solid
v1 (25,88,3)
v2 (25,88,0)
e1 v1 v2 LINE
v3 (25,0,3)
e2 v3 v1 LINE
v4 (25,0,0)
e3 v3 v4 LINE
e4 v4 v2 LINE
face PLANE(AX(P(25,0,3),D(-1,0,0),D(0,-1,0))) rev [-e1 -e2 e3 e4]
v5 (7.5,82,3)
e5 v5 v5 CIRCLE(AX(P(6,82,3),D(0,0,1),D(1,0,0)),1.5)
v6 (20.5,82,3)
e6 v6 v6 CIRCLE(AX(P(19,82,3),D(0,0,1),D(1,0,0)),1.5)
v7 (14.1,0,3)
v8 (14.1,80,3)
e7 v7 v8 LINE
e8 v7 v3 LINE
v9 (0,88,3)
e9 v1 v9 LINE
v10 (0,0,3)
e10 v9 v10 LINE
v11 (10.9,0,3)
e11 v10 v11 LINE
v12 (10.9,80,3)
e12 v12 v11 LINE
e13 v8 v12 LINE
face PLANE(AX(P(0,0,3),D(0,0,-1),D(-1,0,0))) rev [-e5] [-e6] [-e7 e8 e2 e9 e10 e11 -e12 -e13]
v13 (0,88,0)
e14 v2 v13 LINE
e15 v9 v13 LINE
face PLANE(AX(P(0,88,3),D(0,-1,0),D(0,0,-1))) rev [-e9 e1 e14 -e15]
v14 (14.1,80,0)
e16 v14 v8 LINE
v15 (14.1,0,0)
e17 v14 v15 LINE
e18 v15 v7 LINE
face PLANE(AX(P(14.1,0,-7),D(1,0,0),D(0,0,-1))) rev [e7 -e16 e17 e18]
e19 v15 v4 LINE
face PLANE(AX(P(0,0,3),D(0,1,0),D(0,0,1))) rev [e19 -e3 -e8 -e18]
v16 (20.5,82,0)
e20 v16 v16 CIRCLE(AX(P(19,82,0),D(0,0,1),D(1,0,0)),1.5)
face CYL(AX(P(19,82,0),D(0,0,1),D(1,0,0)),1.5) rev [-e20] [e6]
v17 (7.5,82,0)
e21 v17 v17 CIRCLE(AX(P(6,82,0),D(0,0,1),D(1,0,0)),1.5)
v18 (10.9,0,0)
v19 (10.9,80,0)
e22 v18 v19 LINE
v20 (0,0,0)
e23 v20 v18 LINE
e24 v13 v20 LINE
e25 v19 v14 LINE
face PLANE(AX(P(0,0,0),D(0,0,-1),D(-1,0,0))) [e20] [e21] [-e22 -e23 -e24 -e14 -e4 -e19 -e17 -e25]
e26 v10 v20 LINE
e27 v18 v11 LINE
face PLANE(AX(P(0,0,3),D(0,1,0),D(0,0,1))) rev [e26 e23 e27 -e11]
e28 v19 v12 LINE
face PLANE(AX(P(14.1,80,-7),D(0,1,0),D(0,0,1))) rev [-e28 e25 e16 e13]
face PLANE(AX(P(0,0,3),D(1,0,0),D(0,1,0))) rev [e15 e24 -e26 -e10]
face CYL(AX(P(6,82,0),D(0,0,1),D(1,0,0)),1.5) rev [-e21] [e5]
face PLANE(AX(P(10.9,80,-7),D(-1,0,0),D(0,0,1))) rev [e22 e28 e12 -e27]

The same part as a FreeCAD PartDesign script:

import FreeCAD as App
import Part
import Sketcher
Q = App.Units.Quantity

doc = App.newDocument("Part")
body = doc.addObject("PartDesign::Body", "Body")

# Sketch on XY plane
sketch1 = doc.addObject("Sketcher::SketchObject", "Sketch")
body.addObject(sketch1)
sketch1.AttachmentSupport = (doc.XY_Plane, [""])
sketch1.MapMode = "FlatFace"
sketch1.addGeometry([
    Part.LineSegment(App.Vector(0, 88, 0), App.Vector(0, 0, 0)),
    Part.LineSegment(App.Vector(0, 0, 0), App.Vector(25, 0, 0)),
    Part.LineSegment(App.Vector(25, 0, 0), App.Vector(25, 88, 0)),
    Part.LineSegment(App.Vector(25, 88, 0), App.Vector(0, 88, 0)),
], False)
sketch1.addConstraint([
    Sketcher.Constraint("Coincident", 0, 2, 1, 1),
    Sketcher.Constraint("Coincident", 1, 2, 2, 1),
    Sketcher.Constraint("Coincident", 2, 2, 3, 1),
    Sketcher.Constraint("Coincident", 3, 2, 0, 1),
    Sketcher.Constraint("Vertical", 0),
    Sketcher.Constraint("Horizontal", 1),
    Sketcher.Constraint("Vertical", 2),
    Sketcher.Constraint("Horizontal", 3),
    Sketcher.Constraint("Coincident", 0, 2, -1, 1),
    Sketcher.Constraint("DistanceX", 1, 1, 1, 2, Q("25 mm")),
    Sketcher.Constraint("DistanceY", 0, 2, 0, 1, Q("88 mm")),
])
pad1 = doc.addObject("PartDesign::Pad", "Pad")
body.addObject(pad1)
pad1.Profile = sketch1
pad1.Length = 3

# Sketch on XY plane
sketch2 = doc.addObject("Sketcher::SketchObject", "Sketch001")
body.addObject(sketch2)
sketch2.AttachmentSupport = (doc.XY_Plane, [""])
sketch2.MapMode = "FlatFace"
sketch2.AttachmentOffset = App.Placement(App.Vector(0, 0, 3), App.Rotation())
sketch2.addGeometry([
    Part.Circle(App.Vector(19, 82, 0), App.Vector(0, 0, 1), 1.5),
    Part.Circle(App.Vector(6, 82, 0), App.Vector(0, 0, 1), 1.5),
], False)
sketch2.addConstraint([
    Sketcher.Constraint("Equal", 0, 1),
    Sketcher.Constraint("Horizontal", 0, 3, 1, 3),
    Sketcher.Constraint("Diameter", 0, Q("3 mm")),
    Sketcher.Constraint("DistanceX", -1, 1, 0, 3, Q("19 mm")),
    Sketcher.Constraint("DistanceY", -1, 1, 0, 3, Q("82 mm")),
    Sketcher.Constraint("DistanceX", -1, 1, 1, 3, Q("6 mm")),
])
pocket1 = doc.addObject("PartDesign::Pocket", "Pocket")
body.addObject(pocket1)
pocket1.Profile = sketch2
pocket1.Length = 3

# Sketch on XY plane
sketch3 = doc.addObject("Sketcher::SketchObject", "Sketch002")
body.addObject(sketch3)
sketch3.AttachmentSupport = (doc.XY_Plane, [""])
sketch3.MapMode = "FlatFace"
sketch3.AttachmentOffset = App.Placement(App.Vector(0, 0, 3), App.Rotation())
sketch3.addGeometry([
    Part.LineSegment(App.Vector(10.9, 80, 0), App.Vector(10.9, 0, 0)),
    Part.LineSegment(App.Vector(10.9, 0, 0), App.Vector(14.1, 0, 0)),
    Part.LineSegment(App.Vector(14.1, 0, 0), App.Vector(14.1, 80, 0)),
    Part.LineSegment(App.Vector(14.1, 80, 0), App.Vector(10.9, 80, 0)),
], False)
sketch3.addConstraint([
    Sketcher.Constraint("Coincident", 0, 2, 1, 1),
    Sketcher.Constraint("Coincident", 1, 2, 2, 1),
    Sketcher.Constraint("Coincident", 2, 2, 3, 1),
    Sketcher.Constraint("Coincident", 3, 2, 0, 1),
    Sketcher.Constraint("Vertical", 0),
    Sketcher.Constraint("Horizontal", 1),
    Sketcher.Constraint("Vertical", 2),
    Sketcher.Constraint("Horizontal", 3),
    Sketcher.Constraint("PointOnObject", 0, 2, -1),
    Sketcher.Constraint("DistanceY", 0, 2, 0, 1, Q("80 mm")),
    Sketcher.Constraint("DistanceX", 1, 1, 1, 2, Q("3.2 mm")),
    Sketcher.Constraint("DistanceX", -1, 1, 0, 2, Q("10.9 mm")),
])
pocket2 = doc.addObject("PartDesign::Pocket", "Pocket001")
body.addObject(pocket2)
pocket2.Profile = sketch3
pocket2.Length = 10

doc.recompute()
